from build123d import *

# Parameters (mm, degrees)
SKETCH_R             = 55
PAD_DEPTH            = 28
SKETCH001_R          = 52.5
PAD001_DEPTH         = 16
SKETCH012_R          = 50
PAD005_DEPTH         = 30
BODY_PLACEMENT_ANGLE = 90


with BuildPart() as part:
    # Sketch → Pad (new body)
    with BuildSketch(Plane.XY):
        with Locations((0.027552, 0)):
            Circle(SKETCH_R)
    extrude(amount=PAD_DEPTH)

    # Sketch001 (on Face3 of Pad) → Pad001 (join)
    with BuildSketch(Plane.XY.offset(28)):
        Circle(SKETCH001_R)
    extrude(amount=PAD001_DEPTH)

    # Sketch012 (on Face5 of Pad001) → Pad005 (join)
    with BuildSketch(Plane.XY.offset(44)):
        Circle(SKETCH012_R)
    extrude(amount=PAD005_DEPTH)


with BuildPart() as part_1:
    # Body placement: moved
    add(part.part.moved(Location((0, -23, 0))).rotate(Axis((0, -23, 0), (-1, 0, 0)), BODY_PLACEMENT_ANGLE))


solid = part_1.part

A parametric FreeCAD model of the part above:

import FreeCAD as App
import Part
import Sketcher

doc = App.newDocument("Part")
body = doc.addObject("PartDesign::Body", "Body")

sketch1 = body.newObject("Sketcher::SketchObject", "Sketch")
sketch1.AttachmentSupport = (doc.getObject("XY_Plane"), [""])
sketch1.MapMode = "FlatFace"
sketch1.addGeometry(Part.Circle(App.Vector(0, 0, 0), App.Vector(0, 0, 1), 55), False)
sketch1.addConstraint(Sketcher.Constraint("PointOnObject", 0, 3, -1))
sketch1.addConstraint(Sketcher.Constraint("Diameter", 0, 110.0))
sketch1.addConstraint(Sketcher.Constraint("DistanceX", -1, 1, 0, 3, 0.027552))
pad1 = body.newObject("PartDesign::Pad", "Pad")
pad1.Profile = sketch1
pad1.Length = 28

sketch2 = body.newObject("Sketcher::SketchObject", "Sketch001")
sketch2.AttachmentSupport = (doc.getObject("XY_Plane"), [""])
sketch2.MapMode = "FlatFace"
sketch2.AttachmentOffset = App.Placement(App.Vector(0, 0, 28), App.Rotation())
sketch2.addGeometry(Part.Circle(App.Vector(0, 0, 0), App.Vector(0, 0, 1), 52), False)
sketch2.addConstraint(Sketcher.Constraint("Coincident", 0, 3, -1, 1))
sketch2.addConstraint(Sketcher.Constraint("Diameter", 0, 105.0))
pad2 = body.newObject("PartDesign::Pad", "Pad001")
pad2.Profile = sketch2
pad2.Length = 16

sketch3 = body.newObject("Sketcher::SketchObject", "Sketch002")
sketch3.AttachmentSupport = (doc.getObject("XY_Plane"), [""])
sketch3.MapMode = "FlatFace"
sketch3.AttachmentOffset = App.Placement(App.Vector(0, 0, 44), App.Rotation())
sketch3.addGeometry(Part.Circle(App.Vector(0, 0, 0), App.Vector(0, 0, 1), 50), False)
sketch3.addConstraint(Sketcher.Constraint("Coincident", 0, 3, -1, 1))
sketch3.addConstraint(Sketcher.Constraint("Diameter", 0, 100.0))
pad3 = body.newObject("PartDesign::Pad", "Pad002")
pad3.Profile = sketch3
pad3.Length = 30
body2 = doc.addObject("PartDesign::Body", "Body001")
doc.recompute()

body.Placement = App.Placement(App.Vector(0, -23, 0), App.Rotation(App.Vector(-1, 0, 0), 90))
boolean = body2.newObject("PartDesign::Boolean", "Boolean")
boolean.Type = "Fuse"
boolean.addObjects([body])

doc.recompute()
